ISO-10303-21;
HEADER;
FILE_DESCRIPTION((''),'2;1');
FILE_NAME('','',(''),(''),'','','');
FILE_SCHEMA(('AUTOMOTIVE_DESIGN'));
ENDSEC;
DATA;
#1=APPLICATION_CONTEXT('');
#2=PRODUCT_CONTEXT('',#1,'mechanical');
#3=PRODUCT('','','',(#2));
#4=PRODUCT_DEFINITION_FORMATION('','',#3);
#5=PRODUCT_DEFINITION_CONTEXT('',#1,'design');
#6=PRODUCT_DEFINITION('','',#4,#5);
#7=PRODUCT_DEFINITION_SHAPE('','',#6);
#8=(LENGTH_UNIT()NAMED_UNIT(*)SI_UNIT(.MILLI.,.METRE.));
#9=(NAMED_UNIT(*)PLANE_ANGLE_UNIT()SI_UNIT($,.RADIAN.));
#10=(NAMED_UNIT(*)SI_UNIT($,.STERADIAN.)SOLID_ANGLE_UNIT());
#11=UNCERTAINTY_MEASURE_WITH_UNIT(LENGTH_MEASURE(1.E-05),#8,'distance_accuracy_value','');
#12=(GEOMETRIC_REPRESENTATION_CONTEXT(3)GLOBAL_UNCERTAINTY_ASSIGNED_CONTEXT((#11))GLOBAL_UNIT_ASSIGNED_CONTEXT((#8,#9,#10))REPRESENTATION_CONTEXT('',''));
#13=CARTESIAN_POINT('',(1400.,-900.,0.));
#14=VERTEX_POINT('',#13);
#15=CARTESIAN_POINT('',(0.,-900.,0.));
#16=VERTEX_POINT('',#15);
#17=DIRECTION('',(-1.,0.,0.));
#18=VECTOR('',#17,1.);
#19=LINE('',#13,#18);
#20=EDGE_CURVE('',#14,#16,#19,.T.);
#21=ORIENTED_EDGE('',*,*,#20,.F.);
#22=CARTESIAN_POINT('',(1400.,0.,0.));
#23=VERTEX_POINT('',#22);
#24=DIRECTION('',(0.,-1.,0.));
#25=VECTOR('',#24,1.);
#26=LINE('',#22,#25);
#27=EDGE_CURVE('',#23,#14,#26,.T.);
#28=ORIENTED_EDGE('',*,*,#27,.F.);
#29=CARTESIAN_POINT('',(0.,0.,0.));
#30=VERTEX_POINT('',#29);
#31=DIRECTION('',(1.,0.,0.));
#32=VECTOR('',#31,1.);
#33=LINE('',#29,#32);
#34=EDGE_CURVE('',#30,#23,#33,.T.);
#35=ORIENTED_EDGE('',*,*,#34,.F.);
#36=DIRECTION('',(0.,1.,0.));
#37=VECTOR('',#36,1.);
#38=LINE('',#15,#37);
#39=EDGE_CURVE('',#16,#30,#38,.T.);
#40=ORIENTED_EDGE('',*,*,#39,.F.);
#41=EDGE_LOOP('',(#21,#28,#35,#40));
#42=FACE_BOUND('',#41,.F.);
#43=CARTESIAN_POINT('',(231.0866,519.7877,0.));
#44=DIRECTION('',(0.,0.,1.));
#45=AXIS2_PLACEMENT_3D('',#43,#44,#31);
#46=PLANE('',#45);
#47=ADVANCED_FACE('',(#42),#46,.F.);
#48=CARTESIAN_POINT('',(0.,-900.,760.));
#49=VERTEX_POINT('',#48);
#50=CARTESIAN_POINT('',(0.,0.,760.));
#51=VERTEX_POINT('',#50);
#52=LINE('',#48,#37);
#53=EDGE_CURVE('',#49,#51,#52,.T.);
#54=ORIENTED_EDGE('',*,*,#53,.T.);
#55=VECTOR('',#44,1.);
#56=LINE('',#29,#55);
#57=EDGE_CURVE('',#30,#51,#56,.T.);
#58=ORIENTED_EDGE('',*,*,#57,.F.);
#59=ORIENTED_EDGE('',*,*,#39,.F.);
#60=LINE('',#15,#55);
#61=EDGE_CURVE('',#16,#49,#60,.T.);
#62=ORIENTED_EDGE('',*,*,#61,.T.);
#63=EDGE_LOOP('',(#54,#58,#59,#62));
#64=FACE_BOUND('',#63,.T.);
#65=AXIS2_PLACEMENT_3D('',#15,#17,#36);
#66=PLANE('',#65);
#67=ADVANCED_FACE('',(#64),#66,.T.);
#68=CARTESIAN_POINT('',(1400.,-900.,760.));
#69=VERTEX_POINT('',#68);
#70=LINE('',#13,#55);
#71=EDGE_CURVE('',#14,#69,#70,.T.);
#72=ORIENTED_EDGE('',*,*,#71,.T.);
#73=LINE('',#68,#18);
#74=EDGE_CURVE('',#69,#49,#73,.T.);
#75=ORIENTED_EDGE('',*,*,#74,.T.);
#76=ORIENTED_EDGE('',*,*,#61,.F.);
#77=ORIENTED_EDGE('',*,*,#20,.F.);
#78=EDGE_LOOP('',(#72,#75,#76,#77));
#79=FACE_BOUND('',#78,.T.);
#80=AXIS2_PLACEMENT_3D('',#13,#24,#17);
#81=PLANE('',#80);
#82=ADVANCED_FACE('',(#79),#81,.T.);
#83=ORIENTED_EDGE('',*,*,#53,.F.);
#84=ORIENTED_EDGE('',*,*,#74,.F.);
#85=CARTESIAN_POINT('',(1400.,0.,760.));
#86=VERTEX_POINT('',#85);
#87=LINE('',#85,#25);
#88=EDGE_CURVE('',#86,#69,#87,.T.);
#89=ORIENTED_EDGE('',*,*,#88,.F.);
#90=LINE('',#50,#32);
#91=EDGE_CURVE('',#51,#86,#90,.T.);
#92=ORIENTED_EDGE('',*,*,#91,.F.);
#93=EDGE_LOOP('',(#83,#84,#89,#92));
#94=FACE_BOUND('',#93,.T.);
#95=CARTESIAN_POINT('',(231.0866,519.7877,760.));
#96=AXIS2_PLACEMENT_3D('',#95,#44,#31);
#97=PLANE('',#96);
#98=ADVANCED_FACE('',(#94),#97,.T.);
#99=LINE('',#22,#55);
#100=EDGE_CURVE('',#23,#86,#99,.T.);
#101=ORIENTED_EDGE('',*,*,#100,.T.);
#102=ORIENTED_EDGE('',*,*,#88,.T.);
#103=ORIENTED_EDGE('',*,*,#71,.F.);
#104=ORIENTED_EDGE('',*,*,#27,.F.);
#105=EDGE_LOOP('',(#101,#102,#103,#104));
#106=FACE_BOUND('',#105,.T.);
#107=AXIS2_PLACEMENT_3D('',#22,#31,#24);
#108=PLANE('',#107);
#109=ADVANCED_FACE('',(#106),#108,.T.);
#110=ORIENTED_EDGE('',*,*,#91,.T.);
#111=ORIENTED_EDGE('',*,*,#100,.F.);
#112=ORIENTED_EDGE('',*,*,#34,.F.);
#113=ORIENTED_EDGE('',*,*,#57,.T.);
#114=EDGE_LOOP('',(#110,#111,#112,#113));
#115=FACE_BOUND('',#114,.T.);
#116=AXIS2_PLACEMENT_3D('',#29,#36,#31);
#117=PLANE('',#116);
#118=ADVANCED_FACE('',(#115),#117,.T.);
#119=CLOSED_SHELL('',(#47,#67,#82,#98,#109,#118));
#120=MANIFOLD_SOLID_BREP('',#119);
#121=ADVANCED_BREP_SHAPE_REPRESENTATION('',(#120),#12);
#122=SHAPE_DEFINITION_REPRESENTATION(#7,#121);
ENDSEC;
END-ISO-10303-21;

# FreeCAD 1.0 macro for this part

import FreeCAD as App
import Part
import Sketcher

V = App.Vector
Q = App.Units.Quantity


def add_polygon(sketch, points):
    """Adds a closed chain of lines whose ends are joined by coincident constraints."""
    first, n = sketch.GeometryCount, len(points)
    for a, b in zip(points, points[1:] + points[:1]):
        sketch.addGeometry(Part.LineSegment(App.Vector(*a, 0), App.Vector(*b, 0)), False)
    for i in range(n):
        sketch.addConstraint(Sketcher.Constraint("Coincident", first + i, 2, first + (i + 1) % n, 1))

doc = App.newDocument("Part")
params = doc.addObject("Spreadsheet::Sheet", "Params")
for row, (alias, value) in enumerate([
    ("sketch1_width", "1400 mm"),
    ("sketch1_height", "900 mm"),
    ("pad1_length", "760 mm"),
], start=1):
    params.set(f"A{row}", alias)
    params.set(f"B{row}", "=" + value)
    params.setAlias(f"B{row}", alias)

body = doc.addObject("PartDesign::Body", "Body")

# Sketch on XY plane
sketch1 = doc.addObject("Sketcher::SketchObject", "Sketch")
body.addObject(sketch1)
sketch1.AttachmentSupport = (doc.XY_Plane, [""])
sketch1.MapMode = "FlatFace"
add_polygon(sketch1, [(1400, 0), (0, 0), (0, -900), (1400, -900)])  # lines 0-3
sketch1.addConstraint([
    Sketcher.Constraint("Horizontal", 0),
    Sketcher.Constraint("Vertical", 1),
    Sketcher.Constraint("Horizontal", 2),
    Sketcher.Constraint("Vertical", 3),
    Sketcher.Constraint("Coincident", 0, 2, -1, 1),
    Sketcher.Constraint("DistanceX", 0, 2, 0, 1, Q("1400 mm")),
    Sketcher.Constraint("DistanceY", 1, 2, 1, 1, Q("900 mm")),
])
sketch1.setExpression("Constraints[9]", "Params.sketch1_width")
sketch1.setExpression("Constraints[10]", "Params.sketch1_height")
pad1 = doc.addObject("PartDesign::Pad", "Pad")
body.addObject(pad1)
pad1.Profile = sketch1
pad1.setExpression("Length", "Params.pad1_length")

doc.recompute()
